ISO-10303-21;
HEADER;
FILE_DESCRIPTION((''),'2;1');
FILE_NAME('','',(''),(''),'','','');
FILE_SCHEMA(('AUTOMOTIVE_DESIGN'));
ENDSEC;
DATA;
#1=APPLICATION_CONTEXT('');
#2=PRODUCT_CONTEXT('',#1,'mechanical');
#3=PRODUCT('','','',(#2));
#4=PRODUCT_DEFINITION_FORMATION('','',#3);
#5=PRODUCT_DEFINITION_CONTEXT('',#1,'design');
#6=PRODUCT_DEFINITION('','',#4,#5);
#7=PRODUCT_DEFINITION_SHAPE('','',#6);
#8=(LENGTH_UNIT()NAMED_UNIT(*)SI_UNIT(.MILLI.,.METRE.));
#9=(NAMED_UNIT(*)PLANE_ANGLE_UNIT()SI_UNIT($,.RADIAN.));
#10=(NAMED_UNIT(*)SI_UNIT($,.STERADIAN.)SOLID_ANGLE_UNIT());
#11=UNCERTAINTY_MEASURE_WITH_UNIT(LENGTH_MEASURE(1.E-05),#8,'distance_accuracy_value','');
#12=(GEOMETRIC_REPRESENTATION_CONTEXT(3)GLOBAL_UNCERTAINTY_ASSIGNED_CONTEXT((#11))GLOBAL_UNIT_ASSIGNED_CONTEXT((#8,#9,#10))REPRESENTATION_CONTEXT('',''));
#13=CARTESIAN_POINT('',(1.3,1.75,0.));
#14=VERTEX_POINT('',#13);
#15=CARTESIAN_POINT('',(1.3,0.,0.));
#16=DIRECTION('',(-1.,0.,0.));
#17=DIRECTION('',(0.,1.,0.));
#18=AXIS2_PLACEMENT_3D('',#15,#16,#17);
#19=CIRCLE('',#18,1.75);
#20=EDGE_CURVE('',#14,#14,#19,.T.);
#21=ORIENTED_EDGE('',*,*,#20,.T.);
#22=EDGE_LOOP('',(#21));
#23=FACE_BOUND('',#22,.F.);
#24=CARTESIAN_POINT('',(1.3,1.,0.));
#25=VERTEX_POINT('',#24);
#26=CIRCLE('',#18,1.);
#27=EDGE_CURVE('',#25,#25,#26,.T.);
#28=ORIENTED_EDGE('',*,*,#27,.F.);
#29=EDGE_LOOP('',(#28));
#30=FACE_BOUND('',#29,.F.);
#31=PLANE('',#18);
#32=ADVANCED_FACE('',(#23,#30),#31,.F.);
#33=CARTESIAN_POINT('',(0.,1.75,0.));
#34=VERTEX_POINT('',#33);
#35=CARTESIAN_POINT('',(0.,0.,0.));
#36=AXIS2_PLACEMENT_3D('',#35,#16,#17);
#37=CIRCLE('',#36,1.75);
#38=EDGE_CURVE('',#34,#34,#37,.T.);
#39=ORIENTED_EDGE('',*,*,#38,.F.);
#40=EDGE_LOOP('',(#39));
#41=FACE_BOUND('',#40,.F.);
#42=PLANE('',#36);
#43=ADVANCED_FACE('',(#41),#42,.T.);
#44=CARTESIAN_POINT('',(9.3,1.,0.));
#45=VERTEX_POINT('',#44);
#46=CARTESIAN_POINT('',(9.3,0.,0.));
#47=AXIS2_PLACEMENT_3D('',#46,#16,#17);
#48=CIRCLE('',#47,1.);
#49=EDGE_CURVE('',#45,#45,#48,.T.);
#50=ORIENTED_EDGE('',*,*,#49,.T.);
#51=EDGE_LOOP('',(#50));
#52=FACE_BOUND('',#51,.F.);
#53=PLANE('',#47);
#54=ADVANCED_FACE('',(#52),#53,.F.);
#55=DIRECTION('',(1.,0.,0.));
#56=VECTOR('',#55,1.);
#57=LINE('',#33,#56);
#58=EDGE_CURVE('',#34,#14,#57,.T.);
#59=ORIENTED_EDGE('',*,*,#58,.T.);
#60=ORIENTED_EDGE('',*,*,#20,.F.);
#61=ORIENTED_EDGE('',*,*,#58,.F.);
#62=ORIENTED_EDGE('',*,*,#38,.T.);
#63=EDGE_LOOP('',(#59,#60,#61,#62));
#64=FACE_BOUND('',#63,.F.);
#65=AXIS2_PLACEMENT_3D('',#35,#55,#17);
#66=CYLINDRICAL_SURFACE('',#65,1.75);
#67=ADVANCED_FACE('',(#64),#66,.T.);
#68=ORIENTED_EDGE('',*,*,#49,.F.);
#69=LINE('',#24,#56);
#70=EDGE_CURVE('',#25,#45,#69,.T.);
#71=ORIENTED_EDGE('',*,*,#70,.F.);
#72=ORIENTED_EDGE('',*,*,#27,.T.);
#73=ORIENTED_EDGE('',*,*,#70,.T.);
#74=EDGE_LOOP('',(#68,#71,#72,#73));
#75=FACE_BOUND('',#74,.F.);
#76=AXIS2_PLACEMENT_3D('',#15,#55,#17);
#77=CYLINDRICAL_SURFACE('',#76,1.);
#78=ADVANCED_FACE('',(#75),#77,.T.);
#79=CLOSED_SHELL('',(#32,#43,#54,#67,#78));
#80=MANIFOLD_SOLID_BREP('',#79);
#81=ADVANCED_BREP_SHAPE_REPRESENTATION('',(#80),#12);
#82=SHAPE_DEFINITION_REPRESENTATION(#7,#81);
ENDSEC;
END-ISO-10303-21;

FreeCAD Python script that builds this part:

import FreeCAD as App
import Part
import Sketcher
from FreeCAD import Vector
Q = App.Units.Quantity


def add_polygon(sketch, points):
    """Adds a closed chain of lines whose ends are joined by coincident constraints."""
    first, n = sketch.GeometryCount, len(points)
    for a, b in zip(points, points[1:] + points[:1]):
        sketch.addGeometry(Part.LineSegment(App.Vector(*a, 0), App.Vector(*b, 0)), False)
    for i in range(n):
        sketch.addConstraint(Sketcher.Constraint("Coincident", first + i, 2, first + (i + 1) % n, 1))

doc = App.newDocument("Part")
params = doc.addObject("Spreadsheet::Sheet", "Params")
for row, (alias, value) in enumerate([
    ("sketch1_width", "8 mm"),
    ("sketch1_height", "1 mm"),
    ("sketch1_width2", "1.3 mm"),
    ("sketch1_height2", "1.75 mm"),
    ("revolution_angle", "360 deg"),
], start=1):
    params.set(f"A{row}", alias)
    params.set(f"B{row}", "=" + value)
    params.setAlias(f"B{row}", alias)

body = doc.addObject("PartDesign::Body", "Body")

# Sketch on XY plane
sketch1 = doc.addObject("Sketcher::SketchObject", "Sketch")
body.addObject(sketch1)
sketch1.AttachmentSupport = (doc.XY_Plane, [""])
sketch1.MapMode = "FlatFace"
add_polygon(sketch1, [(0, 1.8), (0, 0), (9.3, 0), (9.3, 1), (1.3, 1), (1.3, 1.8)])  # lines 0-5
sketch1.addConstraint([
    Sketcher.Constraint("Vertical", 0),
    Sketcher.Constraint("Horizontal", 1),
    Sketcher.Constraint("Vertical", 2),
    Sketcher.Constraint("Horizontal", 3),
    Sketcher.Constraint("Vertical", 4),
    Sketcher.Constraint("Horizontal", 5),
    Sketcher.Constraint("Coincident", 0, 2, -1, 1),
    Sketcher.Constraint("DistanceX", 3, 2, 3, 1, Q("8 mm")),
    Sketcher.Constraint("DistanceY", 2, 1, 2, 2, Q("1 mm")),
    Sketcher.Constraint("DistanceX", 5, 2, 5, 1, Q("1.3 mm")),
    Sketcher.Constraint("DistanceY", 0, 2, 0, 1, Q("1.75 mm")),
])
sketch1.setExpression("Constraints[13]", "Params.sketch1_width")
sketch1.setExpression("Constraints[14]", "Params.sketch1_height")
sketch1.setExpression("Constraints[15]", "Params.sketch1_width2")
sketch1.setExpression("Constraints[16]", "Params.sketch1_height2")
revolution = doc.addObject("PartDesign::Revolution", "Revolution")
body.addObject(revolution)
revolution.Profile = sketch1
revolution.ReferenceAxis = (sketch1, ["H_Axis"])
revolution.setExpression("Angle", "Params.revolution_angle")

doc.recompute()
